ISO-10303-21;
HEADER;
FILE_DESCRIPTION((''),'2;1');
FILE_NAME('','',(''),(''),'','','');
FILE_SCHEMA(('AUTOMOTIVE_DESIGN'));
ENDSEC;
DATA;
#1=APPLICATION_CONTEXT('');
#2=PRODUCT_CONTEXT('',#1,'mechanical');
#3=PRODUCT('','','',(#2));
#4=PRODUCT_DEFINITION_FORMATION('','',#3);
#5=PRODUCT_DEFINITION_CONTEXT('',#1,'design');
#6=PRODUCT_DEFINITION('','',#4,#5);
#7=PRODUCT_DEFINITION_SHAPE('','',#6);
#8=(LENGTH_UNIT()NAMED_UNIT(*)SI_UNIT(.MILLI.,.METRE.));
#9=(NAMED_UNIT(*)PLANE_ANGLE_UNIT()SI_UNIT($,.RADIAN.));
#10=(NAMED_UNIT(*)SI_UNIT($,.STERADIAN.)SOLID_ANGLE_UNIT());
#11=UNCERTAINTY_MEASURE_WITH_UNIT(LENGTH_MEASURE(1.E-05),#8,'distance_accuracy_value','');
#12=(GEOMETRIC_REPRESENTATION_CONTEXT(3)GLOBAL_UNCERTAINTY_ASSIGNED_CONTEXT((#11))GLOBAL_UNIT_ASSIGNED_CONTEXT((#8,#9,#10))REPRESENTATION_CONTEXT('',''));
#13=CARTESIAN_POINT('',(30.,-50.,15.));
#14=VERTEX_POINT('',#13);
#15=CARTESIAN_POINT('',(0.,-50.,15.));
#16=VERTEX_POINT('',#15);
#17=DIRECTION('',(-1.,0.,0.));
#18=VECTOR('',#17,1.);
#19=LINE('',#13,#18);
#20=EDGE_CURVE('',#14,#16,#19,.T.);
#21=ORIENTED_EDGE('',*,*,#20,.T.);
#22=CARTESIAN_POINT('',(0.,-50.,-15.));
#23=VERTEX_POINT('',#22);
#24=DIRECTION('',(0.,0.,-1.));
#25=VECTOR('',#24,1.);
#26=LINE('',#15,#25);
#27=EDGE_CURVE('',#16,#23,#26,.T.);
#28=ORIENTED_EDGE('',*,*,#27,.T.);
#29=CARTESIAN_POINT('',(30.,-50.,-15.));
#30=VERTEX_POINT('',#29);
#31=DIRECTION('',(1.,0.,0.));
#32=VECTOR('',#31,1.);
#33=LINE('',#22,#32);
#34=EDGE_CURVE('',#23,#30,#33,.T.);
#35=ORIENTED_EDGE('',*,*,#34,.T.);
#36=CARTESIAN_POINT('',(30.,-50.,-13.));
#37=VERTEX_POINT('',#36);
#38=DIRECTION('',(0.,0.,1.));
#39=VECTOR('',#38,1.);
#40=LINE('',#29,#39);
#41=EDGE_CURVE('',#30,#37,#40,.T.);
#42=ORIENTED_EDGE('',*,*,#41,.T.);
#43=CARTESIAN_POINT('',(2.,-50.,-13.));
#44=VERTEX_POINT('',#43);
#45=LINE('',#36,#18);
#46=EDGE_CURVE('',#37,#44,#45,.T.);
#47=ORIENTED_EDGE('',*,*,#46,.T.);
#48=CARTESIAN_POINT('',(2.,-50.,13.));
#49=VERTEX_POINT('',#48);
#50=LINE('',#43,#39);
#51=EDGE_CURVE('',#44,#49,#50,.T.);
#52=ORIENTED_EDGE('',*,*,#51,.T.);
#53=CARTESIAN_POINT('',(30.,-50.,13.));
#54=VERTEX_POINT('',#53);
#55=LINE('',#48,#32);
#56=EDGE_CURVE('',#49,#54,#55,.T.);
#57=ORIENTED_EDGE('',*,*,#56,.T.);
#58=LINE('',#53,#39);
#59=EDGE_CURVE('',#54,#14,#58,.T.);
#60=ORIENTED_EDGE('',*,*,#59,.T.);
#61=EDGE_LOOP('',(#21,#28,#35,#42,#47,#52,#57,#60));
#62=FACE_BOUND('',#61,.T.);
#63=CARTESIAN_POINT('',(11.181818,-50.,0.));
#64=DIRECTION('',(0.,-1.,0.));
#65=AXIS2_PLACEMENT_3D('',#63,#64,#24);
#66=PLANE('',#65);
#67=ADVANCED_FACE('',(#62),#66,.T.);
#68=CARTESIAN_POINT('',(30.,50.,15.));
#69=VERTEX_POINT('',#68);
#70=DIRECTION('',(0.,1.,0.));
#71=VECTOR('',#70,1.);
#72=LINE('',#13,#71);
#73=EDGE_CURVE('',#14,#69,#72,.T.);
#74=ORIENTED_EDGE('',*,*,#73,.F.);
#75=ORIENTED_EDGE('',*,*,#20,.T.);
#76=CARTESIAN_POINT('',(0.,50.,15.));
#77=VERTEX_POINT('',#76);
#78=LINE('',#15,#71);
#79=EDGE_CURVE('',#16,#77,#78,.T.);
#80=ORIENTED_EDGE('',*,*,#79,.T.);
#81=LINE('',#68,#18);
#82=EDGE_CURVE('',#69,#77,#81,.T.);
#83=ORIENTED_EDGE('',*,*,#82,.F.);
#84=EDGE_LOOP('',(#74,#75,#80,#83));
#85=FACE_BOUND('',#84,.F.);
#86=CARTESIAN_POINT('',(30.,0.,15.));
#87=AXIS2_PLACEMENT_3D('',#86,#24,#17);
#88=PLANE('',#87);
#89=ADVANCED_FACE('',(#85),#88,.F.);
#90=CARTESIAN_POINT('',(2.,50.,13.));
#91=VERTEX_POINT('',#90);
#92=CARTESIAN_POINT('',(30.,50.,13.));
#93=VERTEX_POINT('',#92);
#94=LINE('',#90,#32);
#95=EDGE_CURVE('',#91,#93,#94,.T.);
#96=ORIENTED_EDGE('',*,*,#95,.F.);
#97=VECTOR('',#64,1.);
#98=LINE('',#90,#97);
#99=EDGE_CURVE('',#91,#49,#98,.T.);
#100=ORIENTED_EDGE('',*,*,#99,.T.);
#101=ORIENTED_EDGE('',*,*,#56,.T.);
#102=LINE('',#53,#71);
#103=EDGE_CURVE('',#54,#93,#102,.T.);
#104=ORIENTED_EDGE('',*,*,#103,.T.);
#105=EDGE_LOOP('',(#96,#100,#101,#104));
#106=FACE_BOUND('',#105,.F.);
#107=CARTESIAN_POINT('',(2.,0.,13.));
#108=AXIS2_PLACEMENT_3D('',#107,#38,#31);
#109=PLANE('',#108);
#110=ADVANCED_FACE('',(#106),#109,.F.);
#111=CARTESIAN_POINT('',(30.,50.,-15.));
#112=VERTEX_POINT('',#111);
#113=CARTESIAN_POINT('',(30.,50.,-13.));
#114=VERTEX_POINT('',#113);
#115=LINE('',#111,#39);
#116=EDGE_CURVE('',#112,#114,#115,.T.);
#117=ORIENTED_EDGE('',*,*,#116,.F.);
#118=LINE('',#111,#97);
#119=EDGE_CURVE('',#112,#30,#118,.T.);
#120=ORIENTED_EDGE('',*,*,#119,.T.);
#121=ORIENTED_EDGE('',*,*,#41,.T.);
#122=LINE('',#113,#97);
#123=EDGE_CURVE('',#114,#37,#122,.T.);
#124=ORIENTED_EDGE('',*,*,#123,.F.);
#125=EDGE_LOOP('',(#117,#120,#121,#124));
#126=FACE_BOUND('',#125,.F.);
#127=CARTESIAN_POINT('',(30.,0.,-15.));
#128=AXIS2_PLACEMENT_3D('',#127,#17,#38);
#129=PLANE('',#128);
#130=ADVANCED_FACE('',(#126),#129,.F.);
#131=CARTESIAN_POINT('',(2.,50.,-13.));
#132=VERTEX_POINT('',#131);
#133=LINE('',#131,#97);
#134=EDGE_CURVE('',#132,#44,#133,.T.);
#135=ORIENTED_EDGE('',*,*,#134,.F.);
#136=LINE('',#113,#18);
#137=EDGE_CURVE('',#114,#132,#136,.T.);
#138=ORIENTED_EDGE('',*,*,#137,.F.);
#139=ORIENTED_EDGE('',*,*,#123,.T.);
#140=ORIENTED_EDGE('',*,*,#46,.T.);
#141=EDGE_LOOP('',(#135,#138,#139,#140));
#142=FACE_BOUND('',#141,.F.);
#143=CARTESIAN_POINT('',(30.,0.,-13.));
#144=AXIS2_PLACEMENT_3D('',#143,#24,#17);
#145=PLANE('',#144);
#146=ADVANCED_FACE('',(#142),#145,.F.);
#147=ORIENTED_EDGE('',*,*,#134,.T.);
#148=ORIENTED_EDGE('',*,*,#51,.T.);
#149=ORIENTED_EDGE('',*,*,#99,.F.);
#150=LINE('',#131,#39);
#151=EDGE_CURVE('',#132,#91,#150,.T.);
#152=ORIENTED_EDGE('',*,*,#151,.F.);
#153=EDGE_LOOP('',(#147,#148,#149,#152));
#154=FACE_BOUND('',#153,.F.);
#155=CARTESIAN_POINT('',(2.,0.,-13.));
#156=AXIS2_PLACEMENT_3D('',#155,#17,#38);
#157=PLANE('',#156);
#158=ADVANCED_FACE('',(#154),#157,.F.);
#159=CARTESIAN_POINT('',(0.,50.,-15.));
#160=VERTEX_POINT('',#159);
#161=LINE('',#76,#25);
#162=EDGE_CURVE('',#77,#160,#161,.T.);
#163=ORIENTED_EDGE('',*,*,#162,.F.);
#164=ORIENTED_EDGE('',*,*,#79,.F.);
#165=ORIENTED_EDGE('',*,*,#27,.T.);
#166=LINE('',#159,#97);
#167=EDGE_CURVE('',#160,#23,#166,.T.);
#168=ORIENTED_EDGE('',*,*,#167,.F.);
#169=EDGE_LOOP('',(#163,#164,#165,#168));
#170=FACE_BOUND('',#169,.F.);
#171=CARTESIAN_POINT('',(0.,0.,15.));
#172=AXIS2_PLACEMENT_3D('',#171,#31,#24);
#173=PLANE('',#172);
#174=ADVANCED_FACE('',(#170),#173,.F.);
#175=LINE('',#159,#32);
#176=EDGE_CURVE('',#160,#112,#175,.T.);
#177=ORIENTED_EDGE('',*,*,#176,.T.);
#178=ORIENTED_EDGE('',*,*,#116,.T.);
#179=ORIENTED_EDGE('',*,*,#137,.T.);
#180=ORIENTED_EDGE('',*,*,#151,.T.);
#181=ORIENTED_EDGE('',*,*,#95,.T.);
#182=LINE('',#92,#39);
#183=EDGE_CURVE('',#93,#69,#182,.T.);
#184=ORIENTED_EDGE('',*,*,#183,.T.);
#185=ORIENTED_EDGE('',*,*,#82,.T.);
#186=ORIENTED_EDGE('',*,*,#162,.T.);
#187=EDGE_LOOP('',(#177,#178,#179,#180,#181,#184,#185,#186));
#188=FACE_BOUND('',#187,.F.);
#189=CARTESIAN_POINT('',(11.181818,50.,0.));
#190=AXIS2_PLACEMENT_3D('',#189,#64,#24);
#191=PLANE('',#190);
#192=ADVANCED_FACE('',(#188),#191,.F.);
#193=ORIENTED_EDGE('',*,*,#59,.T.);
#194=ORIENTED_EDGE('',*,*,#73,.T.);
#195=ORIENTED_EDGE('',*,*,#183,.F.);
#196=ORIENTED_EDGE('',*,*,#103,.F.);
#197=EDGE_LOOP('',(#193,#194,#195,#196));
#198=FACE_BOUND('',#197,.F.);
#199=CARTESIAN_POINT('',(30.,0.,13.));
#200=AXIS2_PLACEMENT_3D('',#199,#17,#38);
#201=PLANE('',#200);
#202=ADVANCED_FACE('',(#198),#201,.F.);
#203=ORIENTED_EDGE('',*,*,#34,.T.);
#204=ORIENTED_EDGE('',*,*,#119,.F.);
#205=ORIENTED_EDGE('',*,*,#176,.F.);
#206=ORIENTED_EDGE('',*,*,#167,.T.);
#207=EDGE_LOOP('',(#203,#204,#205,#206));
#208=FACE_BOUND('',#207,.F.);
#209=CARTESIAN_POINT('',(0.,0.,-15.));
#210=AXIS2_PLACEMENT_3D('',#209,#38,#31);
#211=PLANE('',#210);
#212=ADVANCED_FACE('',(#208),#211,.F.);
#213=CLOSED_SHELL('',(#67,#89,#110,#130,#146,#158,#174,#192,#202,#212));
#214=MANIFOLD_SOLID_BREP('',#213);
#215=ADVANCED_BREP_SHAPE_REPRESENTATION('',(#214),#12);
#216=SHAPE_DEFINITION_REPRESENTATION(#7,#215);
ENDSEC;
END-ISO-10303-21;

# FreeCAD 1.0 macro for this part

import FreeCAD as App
import Part
import Sketcher

V = App.Vector


def add_polygon(sketch, points):
    """Adds a closed chain of lines whose ends are joined by coincident constraints."""
    first, n = sketch.GeometryCount, len(points)
    for a, b in zip(points, points[1:] + points[:1]):
        sketch.addGeometry(Part.LineSegment(App.Vector(*a, 0), App.Vector(*b, 0)), False)
    for i in range(n):
        sketch.addConstraint(Sketcher.Constraint("Coincident", first + i, 2, first + (i + 1) % n, 1))

doc = App.newDocument("Part")
body = doc.addObject("PartDesign::Body", "Body")

# Sketch on XZ plane
sketch1 = doc.addObject("Sketcher::SketchObject", "Sketch")
body.addObject(sketch1)
sketch1.AttachmentSupport = (doc.XZ_Plane, [""])
sketch1.MapMode = "FlatFace"
add_polygon(sketch1, [(30, 15), (0, 15), (0, -15), (30, -15), (30, -13), (2, -13), (2, 13), (30, 13)])  # lines 0-7
sketch1.addConstraint([
    Sketcher.Constraint("Horizontal", 0),
    Sketcher.Constraint("Vertical", 1),
    Sketcher.Constraint("Horizontal", 2),
    Sketcher.Constraint("Vertical", 3),
    Sketcher.Constraint("Horizontal", 4),
    Sketcher.Constraint("Vertical", 5),
    Sketcher.Constraint("Horizontal", 6),
    Sketcher.Constraint("Vertical", 7),
    Sketcher.Constraint("Symmetric", 0, 2, 1, 2, -1, 1),
    Sketcher.Constraint("Symmetric", 3, 2, 6, 2, -1),
    Sketcher.Constraint("Equal", 2, 1),
    Sketcher.Constraint("DistanceX", 0, 2, 0, 1, 30.0),
    Sketcher.Constraint("DistanceX", 4, 2, 4, 1, 28.0),
    Sketcher.Constraint("DistanceY", 3, 1, 3, 2, 2.0),
])
pad1 = doc.addObject("PartDesign::Pad", "Pad")
body.addObject(pad1)
pad1.Profile = sketch1
pad1.Length = 100
pad1.Midplane = True

doc.recompute()
